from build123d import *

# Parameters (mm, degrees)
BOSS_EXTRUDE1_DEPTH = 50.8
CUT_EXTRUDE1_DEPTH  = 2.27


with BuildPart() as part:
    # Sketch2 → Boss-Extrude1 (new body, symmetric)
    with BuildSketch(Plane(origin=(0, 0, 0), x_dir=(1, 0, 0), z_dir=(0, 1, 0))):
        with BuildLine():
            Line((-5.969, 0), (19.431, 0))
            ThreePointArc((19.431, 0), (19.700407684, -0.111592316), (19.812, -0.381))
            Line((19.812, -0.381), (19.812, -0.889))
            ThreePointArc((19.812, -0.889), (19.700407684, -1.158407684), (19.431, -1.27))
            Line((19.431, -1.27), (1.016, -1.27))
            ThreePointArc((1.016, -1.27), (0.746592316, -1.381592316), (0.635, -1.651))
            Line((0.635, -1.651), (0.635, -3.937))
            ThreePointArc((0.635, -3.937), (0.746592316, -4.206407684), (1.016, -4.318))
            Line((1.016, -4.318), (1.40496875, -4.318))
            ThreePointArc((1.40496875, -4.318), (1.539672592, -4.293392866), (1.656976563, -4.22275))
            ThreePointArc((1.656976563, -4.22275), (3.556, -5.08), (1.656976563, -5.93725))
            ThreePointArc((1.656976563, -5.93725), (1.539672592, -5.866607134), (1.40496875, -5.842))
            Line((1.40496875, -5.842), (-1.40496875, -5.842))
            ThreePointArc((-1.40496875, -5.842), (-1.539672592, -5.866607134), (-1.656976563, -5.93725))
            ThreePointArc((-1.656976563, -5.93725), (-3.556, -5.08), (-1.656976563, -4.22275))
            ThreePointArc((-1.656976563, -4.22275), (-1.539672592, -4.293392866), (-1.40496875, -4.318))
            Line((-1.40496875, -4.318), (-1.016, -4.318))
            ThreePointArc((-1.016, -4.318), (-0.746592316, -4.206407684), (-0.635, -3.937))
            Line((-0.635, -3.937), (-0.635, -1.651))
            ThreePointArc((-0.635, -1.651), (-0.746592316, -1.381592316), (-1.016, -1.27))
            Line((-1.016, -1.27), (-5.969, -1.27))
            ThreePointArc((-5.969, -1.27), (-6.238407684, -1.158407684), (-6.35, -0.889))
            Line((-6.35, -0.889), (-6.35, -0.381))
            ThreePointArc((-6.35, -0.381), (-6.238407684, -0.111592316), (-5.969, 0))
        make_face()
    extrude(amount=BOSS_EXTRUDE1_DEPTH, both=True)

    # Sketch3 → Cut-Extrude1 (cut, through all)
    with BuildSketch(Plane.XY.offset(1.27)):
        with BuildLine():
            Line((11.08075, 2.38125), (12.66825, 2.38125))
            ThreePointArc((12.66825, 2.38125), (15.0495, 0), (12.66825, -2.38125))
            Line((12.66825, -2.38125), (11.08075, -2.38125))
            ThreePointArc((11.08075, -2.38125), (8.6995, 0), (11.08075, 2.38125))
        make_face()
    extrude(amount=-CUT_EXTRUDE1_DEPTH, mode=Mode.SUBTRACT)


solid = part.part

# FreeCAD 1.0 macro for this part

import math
import FreeCAD as App
import Part
import Sketcher
from FreeCAD import Vector
Q = App.Units.Quantity

doc = App.newDocument("Part")
body = doc.addObject("PartDesign::Body", "Body")

# Sketch on XZ plane
sketch1 = body.newObject("Sketcher::SketchObject", "Sketch")
sketch1.AttachmentSupport = (doc.getObject("XZ_Plane"), [""])
sketch1.MapMode = "FlatFace"
sketch1.addGeometry([
    Part.LineSegment(Vector(19.431, 0, 0), Vector(-5.969, 0, 0)),  # 0
    Part.ArcOfCircle(Part.Circle(Vector(-5.969, 0.381, 0), Vector(0, 0, 1), 0.381), math.radians(180), math.radians(270)),  # 1
    Part.LineSegment(Vector(-6.35, 0.381, 0), Vector(-6.35, 0.889, 0)),  # 2
    Part.ArcOfCircle(Part.Circle(Vector(-5.969, 0.889, 0), Vector(0, 0, 1), 0.381), math.radians(90), math.radians(180)),  # 3
    Part.LineSegment(Vector(-5.969, 1.27, 0), Vector(-1.016, 1.27, 0)),  # 4
    Part.ArcOfCircle(Part.Circle(Vector(-1.016, 1.651, 0), Vector(0, 0, 1), 0.381), math.radians(-90), math.radians(0)),  # 5
    Part.LineSegment(Vector(-0.635, 1.651, 0), Vector(-0.635, 3.937, 0)),  # 6
    Part.ArcOfCircle(Part.Circle(Vector(-1.016, 3.937, 0), Vector(0, 0, 1), 0.381), math.radians(0), math.radians(90)),  # 7
    Part.LineSegment(Vector(-1.016, 4.318, 0), Vector(-1.404969, 4.318, 0)),  # 8
    Part.ArcOfCircle(Part.Circle(Vector(-1.404969, 3.937, 0), Vector(0, 0, 1), 0.381), math.radians(90), math.radians(131.409622)),  # 9
    Part.ArcOfCircle(Part.Circle(Vector(-2.413, 5.08, 0), Vector(0, 0, 1), 1.143), math.radians(48.590378), math.radians(311.409622)),  # 10
    Part.ArcOfCircle(Part.Circle(Vector(-1.404969, 6.223, 0), Vector(0, 0, 1), 0.381), math.radians(-131.409622), math.radians(-90)),  # 11
    Part.LineSegment(Vector(-1.404969, 5.842, 0), Vector(1.404969, 5.842, 0)),  # 12
    Part.ArcOfCircle(Part.Circle(Vector(1.404969, 6.223, 0), Vector(0, 0, 1), 0.381), math.radians(-90), math.radians(-48.590378)),  # 13
    Part.ArcOfCircle(Part.Circle(Vector(2.413, 5.08, 0), Vector(0, 0, 1), 1.143), math.radians(-131.409622), math.radians(131.409622)),  # 14
    Part.ArcOfCircle(Part.Circle(Vector(1.404969, 3.937, 0), Vector(0, 0, 1), 0.381), math.radians(48.590378), math.radians(90)),  # 15
    Part.LineSegment(Vector(1.404969, 4.318, 0), Vector(1.016, 4.318, 0)),  # 16
    Part.ArcOfCircle(Part.Circle(Vector(1.016, 3.937, 0), Vector(0, 0, 1), 0.381), math.radians(90), math.radians(180)),  # 17
    Part.LineSegment(Vector(0.635, 3.937, 0), Vector(0.635, 1.651, 0)),  # 18
    Part.ArcOfCircle(Part.Circle(Vector(1.016, 1.651, 0), Vector(0, 0, 1), 0.381), math.radians(180), math.radians(270)),  # 19
    Part.LineSegment(Vector(1.016, 1.27, 0), Vector(19.431, 1.27, 0)),  # 20
    Part.ArcOfCircle(Part.Circle(Vector(19.431, 0.889, 0), Vector(0, 0, 1), 0.381), math.radians(0), math.radians(90)),  # 21
    Part.LineSegment(Vector(19.812, 0.889, 0), Vector(19.812, 0.381, 0)),  # 22
    Part.ArcOfCircle(Part.Circle(Vector(19.431, 0.381, 0), Vector(0, 0, 1), 0.381), math.radians(-90), math.radians(0)),  # 23
], False)
sketch1.addConstraint([
    Sketcher.Constraint("Tangent", 0, 2, 1, 2),
    Sketcher.Constraint("Tangent", 1, 1, 2, 1),
    Sketcher.Constraint("Tangent", 2, 2, 3, 2),
    Sketcher.Constraint("Tangent", 3, 1, 4, 1),
    Sketcher.Constraint("Tangent", 4, 2, 5, 1),
    Sketcher.Constraint("Tangent", 5, 2, 6, 1),
    Sketcher.Constraint("Tangent", 6, 2, 7, 1),
    Sketcher.Constraint("Tangent", 7, 2, 8, 1),
    Sketcher.Constraint("Tangent", 8, 2, 9, 1),
    Sketcher.Constraint("Tangent", 9, 2, 10, 2),
    Sketcher.Constraint("Tangent", 10, 1, 11, 1),
    Sketcher.Constraint("Tangent", 11, 2, 12, 1),
    Sketcher.Constraint("Tangent", 12, 2, 13, 1),
    Sketcher.Constraint("Tangent", 13, 2, 14, 2),
    Sketcher.Constraint("Tangent", 14, 1, 15, 1),
    Sketcher.Constraint("Tangent", 15, 2, 16, 1),
    Sketcher.Constraint("Tangent", 16, 2, 17, 1),
    Sketcher.Constraint("Tangent", 17, 2, 18, 1),
    Sketcher.Constraint("Tangent", 18, 2, 19, 1),
    Sketcher.Constraint("Tangent", 19, 2, 20, 1),
    Sketcher.Constraint("Tangent", 20, 2, 21, 2),
    Sketcher.Constraint("Tangent", 21, 1, 22, 1),
    Sketcher.Constraint("Tangent", 22, 2, 23, 2),
    Sketcher.Constraint("Tangent", 23, 1, 0, 1),
    Sketcher.Constraint("Horizontal", 0),
    Sketcher.Constraint("Vertical", 2),
    Sketcher.Constraint("Horizontal", 4),
    Sketcher.Constraint("Vertical", 6),
    Sketcher.Constraint("Horizontal", 8),
    Sketcher.Constraint("Horizontal", 12),
    Sketcher.Constraint("Horizontal", 16),
    Sketcher.Constraint("Vertical", 18),
    Sketcher.Constraint("Horizontal", 20),
    Sketcher.Constraint("Vertical", 22),
    Sketcher.Constraint("Equal", 1, 3),
    Sketcher.Constraint("Equal", 3, 5),
    Sketcher.Constraint("Equal", 5, 7),
    Sketcher.Constraint("Equal", 7, 9),
    Sketcher.Constraint("Equal", 9, 11),
    Sketcher.Constraint("Equal", 11, 13),
    Sketcher.Constraint("Equal", 10, 14),
    Sketcher.Constraint("Equal", 13, 15),
    Sketcher.Constraint("Equal", 15, 17),
    Sketcher.Constraint("Equal", 17, 19),
    Sketcher.Constraint("Equal", 19, 21),
    Sketcher.Constraint("Equal", 21, 23),
    Sketcher.Constraint("Symmetric", 10, 3, 14, 3, -2),
    Sketcher.Constraint("Symmetric", 7, 3, 17, 3, -2),
    Sketcher.Constraint("PointOnObject", 0, 2, -1),
    Sketcher.Constraint("Horizontal", 5, 3, 19, 3),
    Sketcher.Constraint("Vertical", 9, 3, 11, 3),
    Sketcher.Constraint("DistanceX", 0, 2, 0, 1, Q("1 in")),
    Sketcher.Constraint("Radius", 1, Q("0.015 in")),
    Sketcher.Constraint("Radius", 10, Q("0.045 in")),
    Sketcher.Constraint("DistanceY", 2, 1, 2, 2, Q("0.02 in")),
    Sketcher.Constraint("DistanceY", 6, 1, 6, 2, Q("0.09 in")),
    Sketcher.Constraint("DistanceY", -1, 1, 10, 3, Q("0.2 in")),
    Sketcher.Constraint("DistanceX", 4, 1, 4, 2, Q("0.195 in")),
    Sketcher.Constraint("DistanceX", 20, 1, 20, 2, Q("0.725 in")),
    Sketcher.Constraint("DistanceX", 3, 3, 10, 3, Q("0.14 in")),
])
pad1 = body.newObject("PartDesign::Pad", "Pad")
pad1.Profile = sketch1
pad1.Length = Q("4 in")
pad1.Midplane = True

# Sketch on XY plane
sketch2 = body.newObject("Sketcher::SketchObject", "Sketch001")
sketch2.AttachmentSupport = (doc.getObject("XY_Plane"), [""])
sketch2.MapMode = "FlatFace"
sketch2.AttachmentOffset = App.Placement(Vector(0, 0, 0.05 * 25.4), App.Rotation())
sketch2.addGeometry([
    Part.LineSegment(Vector(12.66825, 2.38125, 0), Vector(11.08075, 2.38125, 0)),
    Part.ArcOfCircle(Part.Circle(Vector(11.08075, 0, 0), Vector(0, 0, 1), 2.38125), math.radians(90), math.radians(270)),
    Part.LineSegment(Vector(11.08075, -2.38125, 0), Vector(12.66825, -2.38125, 0)),
    Part.ArcOfCircle(Part.Circle(Vector(12.66825, 0, 0), Vector(0, 0, 1), 2.38125), math.radians(-90), math.radians(90)),
], False)
sketch2.addConstraint([
    Sketcher.Constraint("Tangent", 0, 2, 1, 1),
    Sketcher.Constraint("Tangent", 1, 2, 2, 1),
    Sketcher.Constraint("Tangent", 2, 2, 3, 1),
    Sketcher.Constraint("Tangent", 3, 2, 0, 1),
    Sketcher.Constraint("Horizontal", 0),
    Sketcher.Constraint("Horizontal", 2),
    Sketcher.Constraint("PointOnObject", 1, 3, -1),
    Sketcher.Constraint("Radius", 1, Q("0.09375 in")),
    Sketcher.Constraint("DistanceX", 0, 2, 0, 1, Q("0.0625 in")),
    Sketcher.Constraint("DistanceX", -1, 1, 1, 3, 11.08075),
])
pocket1 = body.newObject("PartDesign::Pocket", "Pocket")
pocket1.Profile = sketch2
pocket1.Type = "ThroughAll"

doc.recompute()
